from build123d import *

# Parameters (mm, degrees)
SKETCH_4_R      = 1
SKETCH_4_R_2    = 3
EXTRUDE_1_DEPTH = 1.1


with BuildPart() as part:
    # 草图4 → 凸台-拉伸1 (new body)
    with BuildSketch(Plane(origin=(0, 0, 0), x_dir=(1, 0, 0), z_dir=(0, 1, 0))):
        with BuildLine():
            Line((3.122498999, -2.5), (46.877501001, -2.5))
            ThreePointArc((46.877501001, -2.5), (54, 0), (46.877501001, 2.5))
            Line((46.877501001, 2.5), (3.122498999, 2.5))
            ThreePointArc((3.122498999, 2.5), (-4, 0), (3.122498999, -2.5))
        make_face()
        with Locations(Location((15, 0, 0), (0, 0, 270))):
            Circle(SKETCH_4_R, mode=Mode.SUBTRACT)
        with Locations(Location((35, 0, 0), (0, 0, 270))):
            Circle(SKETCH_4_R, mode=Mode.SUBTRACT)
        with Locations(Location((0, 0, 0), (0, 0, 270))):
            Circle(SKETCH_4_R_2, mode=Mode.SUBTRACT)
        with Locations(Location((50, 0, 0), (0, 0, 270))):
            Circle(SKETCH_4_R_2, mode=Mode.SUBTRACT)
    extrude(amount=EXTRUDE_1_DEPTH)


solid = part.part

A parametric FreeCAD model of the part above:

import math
import FreeCAD as App
import Part
import Sketcher
Q = App.Units.Quantity

doc = App.newDocument("Part")
body = doc.addObject("PartDesign::Body", "Body")

# Sketch on XZ plane
sketch1 = body.newObject("Sketcher::SketchObject", "Sketch")
sketch1.AttachmentSupport = (doc.getObject("XZ_Plane"), [""])
sketch1.MapMode = "FlatFace"
sketch1.addGeometry(Part.LineSegment(App.Vector(3.1, 2.5, 0), App.Vector(46.9, 2.5, 0)), False)
sketch1.addGeometry(Part.ArcOfCircle(Part.Circle(App.Vector(50, 0, 0), App.Vector(0, 0, 1), 4), math.radians(-141), math.radians(141)), False)
sketch1.addGeometry(Part.LineSegment(App.Vector(46.9, -2.5, 0), App.Vector(3.1, -2.5, 0)), False)
sketch1.addGeometry(Part.ArcOfCircle(Part.Circle(App.Vector(0, 0, 0), App.Vector(0, 0, 1), 4), math.radians(39), math.radians(321)), False)
sketch1.addGeometry(Part.Circle(App.Vector(0, 0, 0), App.Vector(0, 0, 1), 3), False)
sketch1.addGeometry(Part.Circle(App.Vector(15, 0, 0), App.Vector(0, 0, 1), 1), False)
sketch1.addGeometry(Part.Circle(App.Vector(35, 0, 0), App.Vector(0, 0, 1), 1), False)
sketch1.addGeometry(Part.Circle(App.Vector(50, 0, 0), App.Vector(0, 0, 1), 3), False)
sketch1.addConstraint(Sketcher.Constraint("Coincident", 0, 2, 1, 2))
sketch1.addConstraint(Sketcher.Constraint("Coincident", 1, 1, 2, 1))
sketch1.addConstraint(Sketcher.Constraint("Coincident", 2, 2, 3, 2))
sketch1.addConstraint(Sketcher.Constraint("Coincident", 3, 1, 0, 1))
sketch1.addConstraint(Sketcher.Constraint("Horizontal", 0))
sketch1.addConstraint(Sketcher.Constraint("Horizontal", 2))
sketch1.addConstraint(Sketcher.Constraint("Coincident", 3, 3, -1, 1))
sketch1.addConstraint(Sketcher.Constraint("Coincident", 4, 3, -1, 1))
sketch1.addConstraint(Sketcher.Constraint("Coincident", 7, 3, 1, 3))
sketch1.addConstraint(Sketcher.Constraint("Equal", 1, 3))
sketch1.addConstraint(Sketcher.Constraint("Equal", 5, 6))
sketch1.addConstraint(Sketcher.Constraint("Equal", 4, 7))
sketch1.addConstraint(Sketcher.Constraint("Symmetric", 0, 2, 1, 1, -1))
sketch1.addConstraint(Sketcher.Constraint("PointOnObject", 5, 3, -1))
sketch1.addConstraint(Sketcher.Constraint("PointOnObject", 6, 3, -1))
sketch1.addConstraint(Sketcher.Constraint("Diameter", 4, Q("6 mm")))
sketch1.addConstraint(Sketcher.Constraint("Diameter", 5, Q("2 mm")))
sketch1.addConstraint(Sketcher.Constraint("Radius", 1, Q("4 mm")))
sketch1.addConstraint(Sketcher.Constraint("DistanceX", -1, 1, 1, 3, Q("50 mm")))
sketch1.addConstraint(Sketcher.Constraint("DistanceX", -1, 1, 5, 3, Q("15 mm")))
sketch1.addConstraint(Sketcher.Constraint("DistanceX", -1, 1, 6, 3, Q("35 mm")))
sketch1.addConstraint(Sketcher.Constraint("DistanceY", 1, 1, 0, 2, Q("5 mm")))
pad1 = body.newObject("PartDesign::Pad", "Pad")
pad1.Profile = sketch1
pad1.Length = 1.1
pad1.Reversed = True

doc.recompute()
